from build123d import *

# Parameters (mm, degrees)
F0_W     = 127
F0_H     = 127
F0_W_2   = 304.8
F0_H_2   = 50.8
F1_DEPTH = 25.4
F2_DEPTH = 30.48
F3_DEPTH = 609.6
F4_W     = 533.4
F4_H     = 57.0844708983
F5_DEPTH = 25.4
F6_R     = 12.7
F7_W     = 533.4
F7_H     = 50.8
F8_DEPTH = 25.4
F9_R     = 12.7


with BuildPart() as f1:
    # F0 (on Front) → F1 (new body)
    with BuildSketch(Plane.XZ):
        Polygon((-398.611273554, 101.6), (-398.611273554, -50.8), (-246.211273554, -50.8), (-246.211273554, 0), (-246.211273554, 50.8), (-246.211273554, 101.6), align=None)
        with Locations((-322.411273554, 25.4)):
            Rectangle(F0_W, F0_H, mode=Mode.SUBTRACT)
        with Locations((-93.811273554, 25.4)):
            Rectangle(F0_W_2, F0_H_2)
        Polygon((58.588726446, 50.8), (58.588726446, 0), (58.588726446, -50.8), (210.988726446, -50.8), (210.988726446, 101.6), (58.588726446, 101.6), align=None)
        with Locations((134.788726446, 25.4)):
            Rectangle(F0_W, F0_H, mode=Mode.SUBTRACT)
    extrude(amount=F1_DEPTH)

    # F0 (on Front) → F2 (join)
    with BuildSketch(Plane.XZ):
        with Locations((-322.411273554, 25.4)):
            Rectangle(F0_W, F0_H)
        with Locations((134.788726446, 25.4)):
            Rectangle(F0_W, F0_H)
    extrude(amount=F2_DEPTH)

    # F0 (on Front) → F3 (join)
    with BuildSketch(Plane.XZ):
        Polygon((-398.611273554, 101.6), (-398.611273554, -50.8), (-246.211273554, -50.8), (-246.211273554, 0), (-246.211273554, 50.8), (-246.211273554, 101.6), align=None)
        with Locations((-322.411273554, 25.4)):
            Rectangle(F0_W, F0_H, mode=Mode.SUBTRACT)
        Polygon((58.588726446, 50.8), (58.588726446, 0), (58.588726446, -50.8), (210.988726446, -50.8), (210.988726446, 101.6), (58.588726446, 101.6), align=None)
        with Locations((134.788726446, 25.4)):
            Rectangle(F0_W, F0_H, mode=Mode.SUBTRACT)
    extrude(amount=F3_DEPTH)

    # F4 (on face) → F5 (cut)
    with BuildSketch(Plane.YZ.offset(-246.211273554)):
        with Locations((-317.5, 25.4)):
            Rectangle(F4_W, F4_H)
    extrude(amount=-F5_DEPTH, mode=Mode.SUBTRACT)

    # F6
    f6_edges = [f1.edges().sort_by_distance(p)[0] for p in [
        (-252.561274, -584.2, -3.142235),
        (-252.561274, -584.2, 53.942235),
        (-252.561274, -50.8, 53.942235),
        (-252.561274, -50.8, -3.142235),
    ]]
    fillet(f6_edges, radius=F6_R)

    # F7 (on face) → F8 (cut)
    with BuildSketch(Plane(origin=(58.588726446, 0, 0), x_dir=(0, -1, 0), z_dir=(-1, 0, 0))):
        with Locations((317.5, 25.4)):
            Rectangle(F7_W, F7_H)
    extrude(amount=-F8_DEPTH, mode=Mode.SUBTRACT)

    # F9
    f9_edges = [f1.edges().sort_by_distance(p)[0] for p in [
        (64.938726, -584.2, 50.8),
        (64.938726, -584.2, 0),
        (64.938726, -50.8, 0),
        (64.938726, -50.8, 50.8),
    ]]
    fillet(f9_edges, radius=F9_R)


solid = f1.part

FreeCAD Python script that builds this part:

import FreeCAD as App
import Part
import Sketcher
Q = App.Units.Quantity


def edges_at(feature, points):
    """Names of the edges that pass closest to the given points."""
    edges = feature.Shape.Edges
    near = lambda p: min(range(len(edges)), key=lambda i: edges[i].distToShape(Part.Vertex(*p))[0])
    return sorted({f"Edge{near(p) + 1}" for p in points})

doc = App.newDocument("Part")
params = doc.addObject("Spreadsheet::Sheet", "Params")
for row, (alias, value) in enumerate([
    ("sketch1_width", "6 in"),
    ("sketch1_width2", "12 in"),
    ("sketch1_width3", "5 in"),
    ("pad1_length", "1 in"),
    ("sketch2_width", "5 in"),
    ("pad2_length", "1.2 in"),
    ("sketch3_width", "6 in"),
    ("sketch3_width2", "5 in"),
    ("pad3_length", "24 in"),
    ("sketch4_width", "21 in"),
    ("pocket1_length", "1 in"),
    ("fillet_radius", "0.5 in"),
    ("sketch5_width", "21 in"),
    ("sketch5_height", "2 in"),
    ("pocket2_length", "1 in"),
    ("fillet2_radius", "0.5 in"),
], start=1):
    params.set(f"A{row}", alias)
    params.set(f"B{row}", "=" + value)
    params.setAlias(f"B{row}", alias)

body = doc.addObject("PartDesign::Body", "Body")

# Sketch on XZ plane
sketch1 = body.newObject("Sketcher::SketchObject", "Sketch")
sketch1.AttachmentSupport = (doc.getObject("XZ_Plane"), [""])
sketch1.MapMode = "FlatFace"
sketch1.addGeometry(Part.LineSegment(App.Vector(-398.611274, 101.6, 0), App.Vector(-398.611274, -50.8, 0)), False)
sketch1.addGeometry(Part.LineSegment(App.Vector(-398.611274, -50.8, 0), App.Vector(-246.211274, -50.8, 0)), False)
sketch1.addGeometry(Part.LineSegment(App.Vector(-246.211274, -50.8, 0), App.Vector(-246.211274, 0, 0)), False)
sketch1.addGeometry(Part.LineSegment(App.Vector(-246.211274, 0, 0), App.Vector(58.588726, 0, 0)), False)
sketch1.addGeometry(Part.LineSegment(App.Vector(58.588726, 0, 0), App.Vector(58.588726, -50.8, 0)), False)
sketch1.addGeometry(Part.LineSegment(App.Vector(58.588726, -50.8, 0), App.Vector(210.988726, -50.8, 0)), False)
sketch1.addGeometry(Part.LineSegment(App.Vector(210.988726, -50.8, 0), App.Vector(210.988726, 101.6, 0)), False)
sketch1.addGeometry(Part.LineSegment(App.Vector(210.988726, 101.6, 0), App.Vector(58.588726, 101.6, 0)), False)
sketch1.addGeometry(Part.LineSegment(App.Vector(58.588726, 101.6, 0), App.Vector(58.588726, 50.8, 0)), False)
sketch1.addGeometry(Part.LineSegment(App.Vector(58.588726, 50.8, 0), App.Vector(-246.211274, 50.8, 0)), False)
sketch1.addGeometry(Part.LineSegment(App.Vector(-246.211274, 50.8, 0), App.Vector(-246.211274, 101.6, 0)), False)
sketch1.addGeometry(Part.LineSegment(App.Vector(-246.211274, 101.6, 0), App.Vector(-398.611274, 101.6, 0)), False)
sketch1.addGeometry(Part.LineSegment(App.Vector(-258.911274, -38.1, 0), App.Vector(-385.911274, -38.1, 0)), False)
sketch1.addGeometry(Part.LineSegment(App.Vector(-385.911274, -38.1, 0), App.Vector(-385.911274, 88.9, 0)), False)
sketch1.addGeometry(Part.LineSegment(App.Vector(-385.911274, 88.9, 0), App.Vector(-258.911274, 88.9, 0)), False)
sketch1.addGeometry(Part.LineSegment(App.Vector(-258.911274, 88.9, 0), App.Vector(-258.911274, -38.1, 0)), False)
sketch1.addGeometry(Part.LineSegment(App.Vector(198.288726, -38.1, 0), App.Vector(71.288726, -38.1, 0)), False)
sketch1.addGeometry(Part.LineSegment(App.Vector(71.288726, -38.1, 0), App.Vector(71.288726, 88.9, 0)), False)
sketch1.addGeometry(Part.LineSegment(App.Vector(71.288726, 88.9, 0), App.Vector(198.288726, 88.9, 0)), False)
sketch1.addGeometry(Part.LineSegment(App.Vector(198.288726, 88.9, 0), App.Vector(198.288726, -38.1, 0)), False)
sketch1.addConstraint(Sketcher.Constraint("Coincident", 0, 2, 1, 1))
sketch1.addConstraint(Sketcher.Constraint("Coincident", 1, 2, 2, 1))
sketch1.addConstraint(Sketcher.Constraint("Coincident", 2, 2, 3, 1))
sketch1.addConstraint(Sketcher.Constraint("Coincident", 3, 2, 4, 1))
sketch1.addConstraint(Sketcher.Constraint("Coincident", 4, 2, 5, 1))
sketch1.addConstraint(Sketcher.Constraint("Coincident", 5, 2, 6, 1))
sketch1.addConstraint(Sketcher.Constraint("Coincident", 6, 2, 7, 1))
sketch1.addConstraint(Sketcher.Constraint("Coincident", 7, 2, 8, 1))
sketch1.addConstraint(Sketcher.Constraint("Coincident", 8, 2, 9, 1))
sketch1.addConstraint(Sketcher.Constraint("Coincident", 9, 2, 10, 1))
sketch1.addConstraint(Sketcher.Constraint("Coincident", 10, 2, 11, 1))
sketch1.addConstraint(Sketcher.Constraint("Coincident", 11, 2, 0, 1))
sketch1.addConstraint(Sketcher.Constraint("Coincident", 12, 2, 13, 1))
sketch1.addConstraint(Sketcher.Constraint("Coincident", 13, 2, 14, 1))
sketch1.addConstraint(Sketcher.Constraint("Coincident", 14, 2, 15, 1))
sketch1.addConstraint(Sketcher.Constraint("Coincident", 15, 2, 12, 1))
sketch1.addConstraint(Sketcher.Constraint("Coincident", 16, 2, 17, 1))
sketch1.addConstraint(Sketcher.Constraint("Coincident", 17, 2, 18, 1))
sketch1.addConstraint(Sketcher.Constraint("Coincident", 18, 2, 19, 1))
sketch1.addConstraint(Sketcher.Constraint("Coincident", 19, 2, 16, 1))
sketch1.addConstraint(Sketcher.Constraint("Vertical", 0))
sketch1.addConstraint(Sketcher.Constraint("Horizontal", 1))
sketch1.addConstraint(Sketcher.Constraint("Vertical", 2))
sketch1.addConstraint(Sketcher.Constraint("Horizontal", 3))
sketch1.addConstraint(Sketcher.Constraint("Vertical", 4))
sketch1.addConstraint(Sketcher.Constraint("Horizontal", 5))
sketch1.addConstraint(Sketcher.Constraint("Vertical", 6))
sketch1.addConstraint(Sketcher.Constraint("Horizontal", 7))
sketch1.addConstraint(Sketcher.Constraint("Vertical", 8))
sketch1.addConstraint(Sketcher.Constraint("Horizontal", 9))
sketch1.addConstraint(Sketcher.Constraint("Vertical", 10))
sketch1.addConstraint(Sketcher.Constraint("Horizontal", 11))
sketch1.addConstraint(Sketcher.Constraint("Horizontal", 12))
sketch1.addConstraint(Sketcher.Constraint("Vertical", 13))
sketch1.addConstraint(Sketcher.Constraint("Horizontal", 14))
sketch1.addConstraint(Sketcher.Constraint("Vertical", 15))
sketch1.addConstraint(Sketcher.Constraint("Horizontal", 16))
sketch1.addConstraint(Sketcher.Constraint("Vertical", 17))
sketch1.addConstraint(Sketcher.Constraint("Horizontal", 18))
sketch1.addConstraint(Sketcher.Constraint("Vertical", 19))
sketch1.addConstraint(Sketcher.Constraint("Symmetric", 4, 2, 8, 2, -1))
sketch1.addConstraint(Sketcher.Constraint("Symmetric", 1, 2, 9, 2, -1))
sketch1.addConstraint(Sketcher.Constraint("PointOnObject", 2, 2, -1))
sketch1.addConstraint(Sketcher.Constraint("Horizontal", 7, 2, 10, 2))
sketch1.addConstraint(Sketcher.Constraint("Horizontal", 15, 2, 16, 2))
sketch1.addConstraint(Sketcher.Constraint("Horizontal", 14, 2, 17, 2))
sketch1.addConstraint(Sketcher.Constraint("Equal", 1, 5))
sketch1.addConstraint(Sketcher.Constraint("Equal", 14, 16))
sketch1.addConstraint(Sketcher.Constraint("Equal", 11, 0))
sketch1.addConstraint(Sketcher.Constraint("Equal", 4, 8))
sketch1.addConstraint(Sketcher.Constraint("Equal", 18, 13))
sketch1.addConstraint(Sketcher.Constraint("DistanceX", 1, 1, 1, 2, Q("6 in")))
sketch1.addConstraint(Sketcher.Constraint("DistanceX", 3, 1, 3, 2, Q("12 in")))
sketch1.addConstraint(Sketcher.Constraint("DistanceX", 12, 2, 12, 1, Q("5 in")))
sketch1.addConstraint(Sketcher.Constraint("DistanceY", 12, 2, -1, 1, Q("1.5 in")))
sketch1.addConstraint(Sketcher.Constraint("DistanceX", 0, 2, 12, 2, Q("0.5 in")))
sketch1.addConstraint(Sketcher.Constraint("DistanceX", 4, 2, 16, 2, Q("0.5 in")))
sketch1.addConstraint(Sketcher.Constraint("DistanceX", 0, 2, -1, 1, Q("398.611274 mm")))
sketch1.setExpression("Constraints[51]", "Params.sketch1_width")
sketch1.setExpression("Constraints[52]", "Params.sketch1_width2")
sketch1.setExpression("Constraints[53]", "Params.sketch1_width3")
pad1 = body.newObject("PartDesign::Pad", "Pad")
pad1.Profile = sketch1
pad1.setExpression("Length", "Params.pad1_length")

# Sketch on XZ plane
sketch2 = body.newObject("Sketcher::SketchObject", "Sketch001")
sketch2.AttachmentSupport = (doc.getObject("XZ_Plane"), [""])
sketch2.MapMode = "FlatFace"
sketch2.addGeometry(Part.LineSegment(App.Vector(-385.911274, 88.9, 0), App.Vector(-385.911274, -38.1, 0)), False)
sketch2.addGeometry(Part.LineSegment(App.Vector(-385.911274, -38.1, 0), App.Vector(-258.911274, -38.1, 0)), False)
sketch2.addGeometry(Part.LineSegment(App.Vector(-258.911274, -38.1, 0), App.Vector(-258.911274, 88.9, 0)), False)
sketch2.addGeometry(Part.LineSegment(App.Vector(-258.911274, 88.9, 0), App.Vector(-385.911274, 88.9, 0)), False)
sketch2.addGeometry(Part.LineSegment(App.Vector(71.288726, 88.9, 0), App.Vector(71.288726, -38.1, 0)), False)
sketch2.addGeometry(Part.LineSegment(App.Vector(71.288726, -38.1, 0), App.Vector(198.288726, -38.1, 0)), False)
sketch2.addGeometry(Part.LineSegment(App.Vector(198.288726, -38.1, 0), App.Vector(198.288726, 88.9, 0)), False)
sketch2.addGeometry(Part.LineSegment(App.Vector(198.288726, 88.9, 0), App.Vector(71.288726, 88.9, 0)), False)
sketch2.addConstraint(Sketcher.Constraint("Coincident", 0, 2, 1, 1))
sketch2.addConstraint(Sketcher.Constraint("Coincident", 1, 2, 2, 1))
sketch2.addConstraint(Sketcher.Constraint("Coincident", 2, 2, 3, 1))
sketch2.addConstraint(Sketcher.Constraint("Coincident", 3, 2, 0, 1))
sketch2.addConstraint(Sketcher.Constraint("Coincident", 4, 2, 5, 1))
sketch2.addConstraint(Sketcher.Constraint("Coincident", 5, 2, 6, 1))
sketch2.addConstraint(Sketcher.Constraint("Coincident", 6, 2, 7, 1))
sketch2.addConstraint(Sketcher.Constraint("Coincident", 7, 2, 4, 1))
sketch2.addConstraint(Sketcher.Constraint("Vertical", 0))
sketch2.addConstraint(Sketcher.Constraint("Horizontal", 1))
sketch2.addConstraint(Sketcher.Constraint("Vertical", 2))
sketch2.addConstraint(Sketcher.Constraint("Horizontal", 3))
sketch2.addConstraint(Sketcher.Constraint("Vertical", 4))
sketch2.addConstraint(Sketcher.Constraint("Horizontal", 5))
sketch2.addConstraint(Sketcher.Constraint("Vertical", 6))
sketch2.addConstraint(Sketcher.Constraint("Horizontal", 7))
sketch2.addConstraint(Sketcher.Constraint("Horizontal", 1, 2, 4, 2))
sketch2.addConstraint(Sketcher.Constraint("Horizontal", 3, 2, 6, 2))
sketch2.addConstraint(Sketcher.Constraint("Equal", 3, 5))
sketch2.addConstraint(Sketcher.Constraint("Equal", 7, 0))
sketch2.addConstraint(Sketcher.Constraint("DistanceX", 1, 1, 1, 2, Q("5 in")))
sketch2.addConstraint(Sketcher.Constraint("DistanceX", 1, 2, 4, 2, Q("13 in")))
sketch2.addConstraint(Sketcher.Constraint("DistanceY", 0, 2, -1, 1, Q("1.5 in")))
sketch2.addConstraint(Sketcher.Constraint("DistanceX", 0, 2, -1, 1, Q("385.911274 mm")))
sketch2.setExpression("Constraints[20]", "Params.sketch2_width")
pad2 = body.newObject("PartDesign::Pad", "Pad001")
pad2.Profile = sketch2
pad2.setExpression("Length", "Params.pad2_length")

# Sketch on XZ plane
sketch3 = body.newObject("Sketcher::SketchObject", "Sketch002")
sketch3.AttachmentSupport = (doc.getObject("XZ_Plane"), [""])
sketch3.MapMode = "FlatFace"
sketch3.addGeometry(Part.LineSegment(App.Vector(-398.611274, 101.6, 0), App.Vector(-398.611274, -50.8, 0)), False)
sketch3.addGeometry(Part.LineSegment(App.Vector(-398.611274, -50.8, 0), App.Vector(-246.211274, -50.8, 0)), False)
sketch3.addGeometry(Part.LineSegment(App.Vector(-246.211274, -50.8, 0), App.Vector(-246.211274, 101.6, 0)), False)
sketch3.addGeometry(Part.LineSegment(App.Vector(-246.211274, 101.6, 0), App.Vector(-398.611274, 101.6, 0)), False)
sketch3.addGeometry(Part.LineSegment(App.Vector(-258.911274, -38.1, 0), App.Vector(-385.911274, -38.1, 0)), False)
sketch3.addGeometry(Part.LineSegment(App.Vector(-385.911274, -38.1, 0), App.Vector(-385.911274, 88.9, 0)), False)
sketch3.addGeometry(Part.LineSegment(App.Vector(-385.911274, 88.9, 0), App.Vector(-258.911274, 88.9, 0)), False)
sketch3.addGeometry(Part.LineSegment(App.Vector(-258.911274, 88.9, 0), App.Vector(-258.911274, -38.1, 0)), False)
sketch3.addGeometry(Part.LineSegment(App.Vector(58.588726, -50.8, 0), App.Vector(210.988726, -50.8, 0)), False)
sketch3.addGeometry(Part.LineSegment(App.Vector(210.988726, -50.8, 0), App.Vector(210.988726, 101.6, 0)), False)
sketch3.addGeometry(Part.LineSegment(App.Vector(210.988726, 101.6, 0), App.Vector(58.588726, 101.6, 0)), False)
sketch3.addGeometry(Part.LineSegment(App.Vector(58.588726, 101.6, 0), App.Vector(58.588726, -50.8, 0)), False)
sketch3.addGeometry(Part.LineSegment(App.Vector(198.288726, -38.1, 0), App.Vector(71.288726, -38.1, 0)), False)
sketch3.addGeometry(Part.LineSegment(App.Vector(71.288726, -38.1, 0), App.Vector(71.288726, 88.9, 0)), False)
sketch3.addGeometry(Part.LineSegment(App.Vector(71.288726, 88.9, 0), App.Vector(198.288726, 88.9, 0)), False)
sketch3.addGeometry(Part.LineSegment(App.Vector(198.288726, 88.9, 0), App.Vector(198.288726, -38.1, 0)), False)
sketch3.addConstraint(Sketcher.Constraint("Coincident", 0, 2, 1, 1))
sketch3.addConstraint(Sketcher.Constraint("Coincident", 1, 2, 2, 1))
sketch3.addConstraint(Sketcher.Constraint("Coincident", 2, 2, 3, 1))
sketch3.addConstraint(Sketcher.Constraint("Coincident", 3, 2, 0, 1))
sketch3.addConstraint(Sketcher.Constraint("Coincident", 4, 2, 5, 1))
sketch3.addConstraint(Sketcher.Constraint("Coincident", 5, 2, 6, 1))
sketch3.addConstraint(Sketcher.Constraint("Coincident", 6, 2, 7, 1))
sketch3.addConstraint(Sketcher.Constraint("Coincident", 7, 2, 4, 1))
sketch3.addConstraint(Sketcher.Constraint("Coincident", 8, 2, 9, 1))
sketch3.addConstraint(Sketcher.Constraint("Coincident", 9, 2, 10, 1))
sketch3.addConstraint(Sketcher.Constraint("Coincident", 10, 2, 11, 1))
sketch3.addConstraint(Sketcher.Constraint("Coincident", 11, 2, 8, 1))
sketch3.addConstraint(Sketcher.Constraint("Coincident", 12, 2, 13, 1))
sketch3.addConstraint(Sketcher.Constraint("Coincident", 13, 2, 14, 1))
sketch3.addConstraint(Sketcher.Constraint("Coincident", 14, 2, 15, 1))
sketch3.addConstraint(Sketcher.Constraint("Coincident", 15, 2, 12, 1))
sketch3.addConstraint(Sketcher.Constraint("Vertical", 0))
sketch3.addConstraint(Sketcher.Constraint("Horizontal", 1))
sketch3.addConstraint(Sketcher.Constraint("Vertical", 2))
sketch3.addConstraint(Sketcher.Constraint("Horizontal", 3))
sketch3.addConstraint(Sketcher.Constraint("Horizontal", 4))
sketch3.addConstraint(Sketcher.Constraint("Vertical", 5))
sketch3.addConstraint(Sketcher.Constraint("Horizontal", 6))
sketch3.addConstraint(Sketcher.Constraint("Vertical", 7))
sketch3.addConstraint(Sketcher.Constraint("Horizontal", 8))
sketch3.addConstraint(Sketcher.Constraint("Vertical", 9))
sketch3.addConstraint(Sketcher.Constraint("Horizontal", 10))
sketch3.addConstraint(Sketcher.Constraint("Vertical", 11))
sketch3.addConstraint(Sketcher.Constraint("Horizontal", 12))
sketch3.addConstraint(Sketcher.Constraint("Vertical", 13))
sketch3.addConstraint(Sketcher.Constraint("Horizontal", 14))
sketch3.addConstraint(Sketcher.Constraint("Vertical", 15))
sketch3.addConstraint(Sketcher.Constraint("Horizontal", 1, 2, 8, 2))
sketch3.addConstraint(Sketcher.Constraint("Horizontal", 3, 2, 9, 2))
sketch3.addConstraint(Sketcher.Constraint("Horizontal", 7, 2, 12, 2))
sketch3.addConstraint(Sketcher.Constraint("Horizontal", 6, 2, 13, 2))
sketch3.addConstraint(Sketcher.Constraint("Equal", 3, 8))
sketch3.addConstraint(Sketcher.Constraint("Equal", 6, 12))
sketch3.addConstraint(Sketcher.Constraint("Equal", 10, 0))
sketch3.addConstraint(Sketcher.Constraint("Equal", 14, 5))
sketch3.addConstraint(Sketcher.Constraint("DistanceX", 1, 1, 1, 2, Q("6 in")))
sketch3.addConstraint(Sketcher.Constraint("DistanceX", 4, 2, 4, 1, Q("5 in")))
sketch3.addConstraint(Sketcher.Constraint("DistanceY", 0, 2, -1, 1, Q("2 in")))
sketch3.addConstraint(Sketcher.Constraint("DistanceX", 1, 2, 8, 2, Q("18 in")))
sketch3.addConstraint(Sketcher.Constraint("DistanceY", 4, 2, -1, 1, Q("1.5 in")))
sketch3.addConstraint(Sketcher.Constraint("DistanceX", 0, 2, 4, 2, Q("0.5 in")))
sketch3.addConstraint(Sketcher.Constraint("DistanceX", 11, 2, 12, 2, Q("0.5 in")))
sketch3.addConstraint(Sketcher.Constraint("DistanceX", 0, 2, -1, 1, Q("398.611274 mm")))
sketch3.setExpression("Constraints[40]", "Params.sketch3_width")
sketch3.setExpression("Constraints[41]", "Params.sketch3_width2")
pad3 = body.newObject("PartDesign::Pad", "Pad002")
pad3.Profile = sketch3
pad3.setExpression("Length", "Params.pad3_length")

# Sketch on YZ plane
sketch4 = body.newObject("Sketcher::SketchObject", "Sketch003")
sketch4.AttachmentSupport = (doc.getObject("YZ_Plane"), [""])
sketch4.MapMode = "FlatFace"
sketch4.AttachmentOffset = App.Placement(App.Vector(0, 0, -246.211274), App.Rotation())
sketch4.addGeometry(Part.LineSegment(App.Vector(-584.2, 53.942235, 0), App.Vector(-584.2, -3.142235, 0)), False)
sketch4.addGeometry(Part.LineSegment(App.Vector(-584.2, -3.142235, 0), App.Vector(-50.8, -3.142235, 0)), False)
sketch4.addGeometry(Part.LineSegment(App.Vector(-50.8, -3.142235, 0), App.Vector(-50.8, 53.942235, 0)), False)
sketch4.addGeometry(Part.LineSegment(App.Vector(-50.8, 53.942235, 0), App.Vector(-584.2, 53.942235, 0)), False)
sketch4.addConstraint(Sketcher.Constraint("Coincident", 0, 2, 1, 1))
sketch4.addConstraint(Sketcher.Constraint("Coincident", 1, 2, 2, 1))
sketch4.addConstraint(Sketcher.Constraint("Coincident", 2, 2, 3, 1))
sketch4.addConstraint(Sketcher.Constraint("Coincident", 3, 2, 0, 1))
sketch4.addConstraint(Sketcher.Constraint("Vertical", 0))
sketch4.addConstraint(Sketcher.Constraint("Horizontal", 1))
sketch4.addConstraint(Sketcher.Constraint("Vertical", 2))
sketch4.addConstraint(Sketcher.Constraint("Horizontal", 3))
sketch4.addConstraint(Sketcher.Constraint("DistanceX", 1, 1, 1, 2, Q("21 in")))
sketch4.addConstraint(Sketcher.Constraint("DistanceX", 0, 2, -1, 1, Q("23 in")))
sketch4.addConstraint(Sketcher.Constraint("DistanceY", 0, 2, 0, 1, Q("57.084471 mm")))
sketch4.addConstraint(Sketcher.Constraint("DistanceY", 0, 2, -1, 1, Q("3.142235 mm")))
sketch4.setExpression("Constraints[8]", "Params.sketch4_width")
pocket1 = body.newObject("PartDesign::Pocket", "Pocket")
pocket1.Profile = sketch4
pocket1.setExpression("Length", "Params.pocket1_length")
doc.recompute()

fillet = body.newObject("PartDesign::Fillet", "Fillet")
fillet.Base = (pocket1, edges_at(pocket1, [
    (-252.561, -584.2, -3.142),
    (-252.561, -584.2, 53.942),
    (-252.561, -50.8, 53.942),
    (-252.561, -50.8, -3.142),
]))
fillet.setExpression("Radius", "Params.fillet_radius")

# Sketch on YZ plane
sketch5 = body.newObject("Sketcher::SketchObject", "Sketch004")
sketch5.AttachmentSupport = (doc.getObject("YZ_Plane"), [""])
sketch5.MapMode = "FlatFace"
sketch5.AttachmentOffset = App.Placement(App.Vector(0, 0, 58.588726), App.Rotation())
sketch5.addGeometry(Part.LineSegment(App.Vector(-50.8, 50.8, 0), App.Vector(-50.8, 0, 0)), False)
sketch5.addGeometry(Part.LineSegment(App.Vector(-50.8, 0, 0), App.Vector(-584.2, 0, 0)), False)
sketch5.addGeometry(Part.LineSegment(App.Vector(-584.2, 0, 0), App.Vector(-584.2, 50.8, 0)), False)
sketch5.addGeometry(Part.LineSegment(App.Vector(-584.2, 50.8, 0), App.Vector(-50.8, 50.8, 0)), False)
sketch5.addConstraint(Sketcher.Constraint("Coincident", 0, 2, 1, 1))
sketch5.addConstraint(Sketcher.Constraint("Coincident", 1, 2, 2, 1))
sketch5.addConstraint(Sketcher.Constraint("Coincident", 2, 2, 3, 1))
sketch5.addConstraint(Sketcher.Constraint("Coincident", 3, 2, 0, 1))
sketch5.addConstraint(Sketcher.Constraint("Vertical", 0))
sketch5.addConstraint(Sketcher.Constraint("Horizontal", 1))
sketch5.addConstraint(Sketcher.Constraint("Vertical", 2))
sketch5.addConstraint(Sketcher.Constraint("Horizontal", 3))
sketch5.addConstraint(Sketcher.Constraint("PointOnObject", 0, 2, -1))
sketch5.addConstraint(Sketcher.Constraint("DistanceX", 1, 2, 1, 1, Q("21 in")))
sketch5.addConstraint(Sketcher.Constraint("DistanceY", 0, 2, 0, 1, Q("2 in")))
sketch5.addConstraint(Sketcher.Constraint("DistanceX", 0, 2, -1, 1, Q("2 in")))
sketch5.setExpression("Constraints[9]", "Params.sketch5_width")
sketch5.setExpression("Constraints[10]", "Params.sketch5_height")
pocket2 = body.newObject("PartDesign::Pocket", "Pocket001")
pocket2.Profile = sketch5
pocket2.setExpression("Length", "Params.pocket2_length")
pocket2.Reversed = True
doc.recompute()

fillet2 = body.newObject("PartDesign::Fillet", "Fillet001")
fillet2.Base = (pocket2, edges_at(pocket2, [
    (64.939, -584.2, 50.8),
    (64.939, -584.2, 0),
    (64.939, -50.8, 0),
    (64.939, -50.8, 50.8),
]))
fillet2.setExpression("Radius", "Params.fillet2_radius")

doc.recompute()
